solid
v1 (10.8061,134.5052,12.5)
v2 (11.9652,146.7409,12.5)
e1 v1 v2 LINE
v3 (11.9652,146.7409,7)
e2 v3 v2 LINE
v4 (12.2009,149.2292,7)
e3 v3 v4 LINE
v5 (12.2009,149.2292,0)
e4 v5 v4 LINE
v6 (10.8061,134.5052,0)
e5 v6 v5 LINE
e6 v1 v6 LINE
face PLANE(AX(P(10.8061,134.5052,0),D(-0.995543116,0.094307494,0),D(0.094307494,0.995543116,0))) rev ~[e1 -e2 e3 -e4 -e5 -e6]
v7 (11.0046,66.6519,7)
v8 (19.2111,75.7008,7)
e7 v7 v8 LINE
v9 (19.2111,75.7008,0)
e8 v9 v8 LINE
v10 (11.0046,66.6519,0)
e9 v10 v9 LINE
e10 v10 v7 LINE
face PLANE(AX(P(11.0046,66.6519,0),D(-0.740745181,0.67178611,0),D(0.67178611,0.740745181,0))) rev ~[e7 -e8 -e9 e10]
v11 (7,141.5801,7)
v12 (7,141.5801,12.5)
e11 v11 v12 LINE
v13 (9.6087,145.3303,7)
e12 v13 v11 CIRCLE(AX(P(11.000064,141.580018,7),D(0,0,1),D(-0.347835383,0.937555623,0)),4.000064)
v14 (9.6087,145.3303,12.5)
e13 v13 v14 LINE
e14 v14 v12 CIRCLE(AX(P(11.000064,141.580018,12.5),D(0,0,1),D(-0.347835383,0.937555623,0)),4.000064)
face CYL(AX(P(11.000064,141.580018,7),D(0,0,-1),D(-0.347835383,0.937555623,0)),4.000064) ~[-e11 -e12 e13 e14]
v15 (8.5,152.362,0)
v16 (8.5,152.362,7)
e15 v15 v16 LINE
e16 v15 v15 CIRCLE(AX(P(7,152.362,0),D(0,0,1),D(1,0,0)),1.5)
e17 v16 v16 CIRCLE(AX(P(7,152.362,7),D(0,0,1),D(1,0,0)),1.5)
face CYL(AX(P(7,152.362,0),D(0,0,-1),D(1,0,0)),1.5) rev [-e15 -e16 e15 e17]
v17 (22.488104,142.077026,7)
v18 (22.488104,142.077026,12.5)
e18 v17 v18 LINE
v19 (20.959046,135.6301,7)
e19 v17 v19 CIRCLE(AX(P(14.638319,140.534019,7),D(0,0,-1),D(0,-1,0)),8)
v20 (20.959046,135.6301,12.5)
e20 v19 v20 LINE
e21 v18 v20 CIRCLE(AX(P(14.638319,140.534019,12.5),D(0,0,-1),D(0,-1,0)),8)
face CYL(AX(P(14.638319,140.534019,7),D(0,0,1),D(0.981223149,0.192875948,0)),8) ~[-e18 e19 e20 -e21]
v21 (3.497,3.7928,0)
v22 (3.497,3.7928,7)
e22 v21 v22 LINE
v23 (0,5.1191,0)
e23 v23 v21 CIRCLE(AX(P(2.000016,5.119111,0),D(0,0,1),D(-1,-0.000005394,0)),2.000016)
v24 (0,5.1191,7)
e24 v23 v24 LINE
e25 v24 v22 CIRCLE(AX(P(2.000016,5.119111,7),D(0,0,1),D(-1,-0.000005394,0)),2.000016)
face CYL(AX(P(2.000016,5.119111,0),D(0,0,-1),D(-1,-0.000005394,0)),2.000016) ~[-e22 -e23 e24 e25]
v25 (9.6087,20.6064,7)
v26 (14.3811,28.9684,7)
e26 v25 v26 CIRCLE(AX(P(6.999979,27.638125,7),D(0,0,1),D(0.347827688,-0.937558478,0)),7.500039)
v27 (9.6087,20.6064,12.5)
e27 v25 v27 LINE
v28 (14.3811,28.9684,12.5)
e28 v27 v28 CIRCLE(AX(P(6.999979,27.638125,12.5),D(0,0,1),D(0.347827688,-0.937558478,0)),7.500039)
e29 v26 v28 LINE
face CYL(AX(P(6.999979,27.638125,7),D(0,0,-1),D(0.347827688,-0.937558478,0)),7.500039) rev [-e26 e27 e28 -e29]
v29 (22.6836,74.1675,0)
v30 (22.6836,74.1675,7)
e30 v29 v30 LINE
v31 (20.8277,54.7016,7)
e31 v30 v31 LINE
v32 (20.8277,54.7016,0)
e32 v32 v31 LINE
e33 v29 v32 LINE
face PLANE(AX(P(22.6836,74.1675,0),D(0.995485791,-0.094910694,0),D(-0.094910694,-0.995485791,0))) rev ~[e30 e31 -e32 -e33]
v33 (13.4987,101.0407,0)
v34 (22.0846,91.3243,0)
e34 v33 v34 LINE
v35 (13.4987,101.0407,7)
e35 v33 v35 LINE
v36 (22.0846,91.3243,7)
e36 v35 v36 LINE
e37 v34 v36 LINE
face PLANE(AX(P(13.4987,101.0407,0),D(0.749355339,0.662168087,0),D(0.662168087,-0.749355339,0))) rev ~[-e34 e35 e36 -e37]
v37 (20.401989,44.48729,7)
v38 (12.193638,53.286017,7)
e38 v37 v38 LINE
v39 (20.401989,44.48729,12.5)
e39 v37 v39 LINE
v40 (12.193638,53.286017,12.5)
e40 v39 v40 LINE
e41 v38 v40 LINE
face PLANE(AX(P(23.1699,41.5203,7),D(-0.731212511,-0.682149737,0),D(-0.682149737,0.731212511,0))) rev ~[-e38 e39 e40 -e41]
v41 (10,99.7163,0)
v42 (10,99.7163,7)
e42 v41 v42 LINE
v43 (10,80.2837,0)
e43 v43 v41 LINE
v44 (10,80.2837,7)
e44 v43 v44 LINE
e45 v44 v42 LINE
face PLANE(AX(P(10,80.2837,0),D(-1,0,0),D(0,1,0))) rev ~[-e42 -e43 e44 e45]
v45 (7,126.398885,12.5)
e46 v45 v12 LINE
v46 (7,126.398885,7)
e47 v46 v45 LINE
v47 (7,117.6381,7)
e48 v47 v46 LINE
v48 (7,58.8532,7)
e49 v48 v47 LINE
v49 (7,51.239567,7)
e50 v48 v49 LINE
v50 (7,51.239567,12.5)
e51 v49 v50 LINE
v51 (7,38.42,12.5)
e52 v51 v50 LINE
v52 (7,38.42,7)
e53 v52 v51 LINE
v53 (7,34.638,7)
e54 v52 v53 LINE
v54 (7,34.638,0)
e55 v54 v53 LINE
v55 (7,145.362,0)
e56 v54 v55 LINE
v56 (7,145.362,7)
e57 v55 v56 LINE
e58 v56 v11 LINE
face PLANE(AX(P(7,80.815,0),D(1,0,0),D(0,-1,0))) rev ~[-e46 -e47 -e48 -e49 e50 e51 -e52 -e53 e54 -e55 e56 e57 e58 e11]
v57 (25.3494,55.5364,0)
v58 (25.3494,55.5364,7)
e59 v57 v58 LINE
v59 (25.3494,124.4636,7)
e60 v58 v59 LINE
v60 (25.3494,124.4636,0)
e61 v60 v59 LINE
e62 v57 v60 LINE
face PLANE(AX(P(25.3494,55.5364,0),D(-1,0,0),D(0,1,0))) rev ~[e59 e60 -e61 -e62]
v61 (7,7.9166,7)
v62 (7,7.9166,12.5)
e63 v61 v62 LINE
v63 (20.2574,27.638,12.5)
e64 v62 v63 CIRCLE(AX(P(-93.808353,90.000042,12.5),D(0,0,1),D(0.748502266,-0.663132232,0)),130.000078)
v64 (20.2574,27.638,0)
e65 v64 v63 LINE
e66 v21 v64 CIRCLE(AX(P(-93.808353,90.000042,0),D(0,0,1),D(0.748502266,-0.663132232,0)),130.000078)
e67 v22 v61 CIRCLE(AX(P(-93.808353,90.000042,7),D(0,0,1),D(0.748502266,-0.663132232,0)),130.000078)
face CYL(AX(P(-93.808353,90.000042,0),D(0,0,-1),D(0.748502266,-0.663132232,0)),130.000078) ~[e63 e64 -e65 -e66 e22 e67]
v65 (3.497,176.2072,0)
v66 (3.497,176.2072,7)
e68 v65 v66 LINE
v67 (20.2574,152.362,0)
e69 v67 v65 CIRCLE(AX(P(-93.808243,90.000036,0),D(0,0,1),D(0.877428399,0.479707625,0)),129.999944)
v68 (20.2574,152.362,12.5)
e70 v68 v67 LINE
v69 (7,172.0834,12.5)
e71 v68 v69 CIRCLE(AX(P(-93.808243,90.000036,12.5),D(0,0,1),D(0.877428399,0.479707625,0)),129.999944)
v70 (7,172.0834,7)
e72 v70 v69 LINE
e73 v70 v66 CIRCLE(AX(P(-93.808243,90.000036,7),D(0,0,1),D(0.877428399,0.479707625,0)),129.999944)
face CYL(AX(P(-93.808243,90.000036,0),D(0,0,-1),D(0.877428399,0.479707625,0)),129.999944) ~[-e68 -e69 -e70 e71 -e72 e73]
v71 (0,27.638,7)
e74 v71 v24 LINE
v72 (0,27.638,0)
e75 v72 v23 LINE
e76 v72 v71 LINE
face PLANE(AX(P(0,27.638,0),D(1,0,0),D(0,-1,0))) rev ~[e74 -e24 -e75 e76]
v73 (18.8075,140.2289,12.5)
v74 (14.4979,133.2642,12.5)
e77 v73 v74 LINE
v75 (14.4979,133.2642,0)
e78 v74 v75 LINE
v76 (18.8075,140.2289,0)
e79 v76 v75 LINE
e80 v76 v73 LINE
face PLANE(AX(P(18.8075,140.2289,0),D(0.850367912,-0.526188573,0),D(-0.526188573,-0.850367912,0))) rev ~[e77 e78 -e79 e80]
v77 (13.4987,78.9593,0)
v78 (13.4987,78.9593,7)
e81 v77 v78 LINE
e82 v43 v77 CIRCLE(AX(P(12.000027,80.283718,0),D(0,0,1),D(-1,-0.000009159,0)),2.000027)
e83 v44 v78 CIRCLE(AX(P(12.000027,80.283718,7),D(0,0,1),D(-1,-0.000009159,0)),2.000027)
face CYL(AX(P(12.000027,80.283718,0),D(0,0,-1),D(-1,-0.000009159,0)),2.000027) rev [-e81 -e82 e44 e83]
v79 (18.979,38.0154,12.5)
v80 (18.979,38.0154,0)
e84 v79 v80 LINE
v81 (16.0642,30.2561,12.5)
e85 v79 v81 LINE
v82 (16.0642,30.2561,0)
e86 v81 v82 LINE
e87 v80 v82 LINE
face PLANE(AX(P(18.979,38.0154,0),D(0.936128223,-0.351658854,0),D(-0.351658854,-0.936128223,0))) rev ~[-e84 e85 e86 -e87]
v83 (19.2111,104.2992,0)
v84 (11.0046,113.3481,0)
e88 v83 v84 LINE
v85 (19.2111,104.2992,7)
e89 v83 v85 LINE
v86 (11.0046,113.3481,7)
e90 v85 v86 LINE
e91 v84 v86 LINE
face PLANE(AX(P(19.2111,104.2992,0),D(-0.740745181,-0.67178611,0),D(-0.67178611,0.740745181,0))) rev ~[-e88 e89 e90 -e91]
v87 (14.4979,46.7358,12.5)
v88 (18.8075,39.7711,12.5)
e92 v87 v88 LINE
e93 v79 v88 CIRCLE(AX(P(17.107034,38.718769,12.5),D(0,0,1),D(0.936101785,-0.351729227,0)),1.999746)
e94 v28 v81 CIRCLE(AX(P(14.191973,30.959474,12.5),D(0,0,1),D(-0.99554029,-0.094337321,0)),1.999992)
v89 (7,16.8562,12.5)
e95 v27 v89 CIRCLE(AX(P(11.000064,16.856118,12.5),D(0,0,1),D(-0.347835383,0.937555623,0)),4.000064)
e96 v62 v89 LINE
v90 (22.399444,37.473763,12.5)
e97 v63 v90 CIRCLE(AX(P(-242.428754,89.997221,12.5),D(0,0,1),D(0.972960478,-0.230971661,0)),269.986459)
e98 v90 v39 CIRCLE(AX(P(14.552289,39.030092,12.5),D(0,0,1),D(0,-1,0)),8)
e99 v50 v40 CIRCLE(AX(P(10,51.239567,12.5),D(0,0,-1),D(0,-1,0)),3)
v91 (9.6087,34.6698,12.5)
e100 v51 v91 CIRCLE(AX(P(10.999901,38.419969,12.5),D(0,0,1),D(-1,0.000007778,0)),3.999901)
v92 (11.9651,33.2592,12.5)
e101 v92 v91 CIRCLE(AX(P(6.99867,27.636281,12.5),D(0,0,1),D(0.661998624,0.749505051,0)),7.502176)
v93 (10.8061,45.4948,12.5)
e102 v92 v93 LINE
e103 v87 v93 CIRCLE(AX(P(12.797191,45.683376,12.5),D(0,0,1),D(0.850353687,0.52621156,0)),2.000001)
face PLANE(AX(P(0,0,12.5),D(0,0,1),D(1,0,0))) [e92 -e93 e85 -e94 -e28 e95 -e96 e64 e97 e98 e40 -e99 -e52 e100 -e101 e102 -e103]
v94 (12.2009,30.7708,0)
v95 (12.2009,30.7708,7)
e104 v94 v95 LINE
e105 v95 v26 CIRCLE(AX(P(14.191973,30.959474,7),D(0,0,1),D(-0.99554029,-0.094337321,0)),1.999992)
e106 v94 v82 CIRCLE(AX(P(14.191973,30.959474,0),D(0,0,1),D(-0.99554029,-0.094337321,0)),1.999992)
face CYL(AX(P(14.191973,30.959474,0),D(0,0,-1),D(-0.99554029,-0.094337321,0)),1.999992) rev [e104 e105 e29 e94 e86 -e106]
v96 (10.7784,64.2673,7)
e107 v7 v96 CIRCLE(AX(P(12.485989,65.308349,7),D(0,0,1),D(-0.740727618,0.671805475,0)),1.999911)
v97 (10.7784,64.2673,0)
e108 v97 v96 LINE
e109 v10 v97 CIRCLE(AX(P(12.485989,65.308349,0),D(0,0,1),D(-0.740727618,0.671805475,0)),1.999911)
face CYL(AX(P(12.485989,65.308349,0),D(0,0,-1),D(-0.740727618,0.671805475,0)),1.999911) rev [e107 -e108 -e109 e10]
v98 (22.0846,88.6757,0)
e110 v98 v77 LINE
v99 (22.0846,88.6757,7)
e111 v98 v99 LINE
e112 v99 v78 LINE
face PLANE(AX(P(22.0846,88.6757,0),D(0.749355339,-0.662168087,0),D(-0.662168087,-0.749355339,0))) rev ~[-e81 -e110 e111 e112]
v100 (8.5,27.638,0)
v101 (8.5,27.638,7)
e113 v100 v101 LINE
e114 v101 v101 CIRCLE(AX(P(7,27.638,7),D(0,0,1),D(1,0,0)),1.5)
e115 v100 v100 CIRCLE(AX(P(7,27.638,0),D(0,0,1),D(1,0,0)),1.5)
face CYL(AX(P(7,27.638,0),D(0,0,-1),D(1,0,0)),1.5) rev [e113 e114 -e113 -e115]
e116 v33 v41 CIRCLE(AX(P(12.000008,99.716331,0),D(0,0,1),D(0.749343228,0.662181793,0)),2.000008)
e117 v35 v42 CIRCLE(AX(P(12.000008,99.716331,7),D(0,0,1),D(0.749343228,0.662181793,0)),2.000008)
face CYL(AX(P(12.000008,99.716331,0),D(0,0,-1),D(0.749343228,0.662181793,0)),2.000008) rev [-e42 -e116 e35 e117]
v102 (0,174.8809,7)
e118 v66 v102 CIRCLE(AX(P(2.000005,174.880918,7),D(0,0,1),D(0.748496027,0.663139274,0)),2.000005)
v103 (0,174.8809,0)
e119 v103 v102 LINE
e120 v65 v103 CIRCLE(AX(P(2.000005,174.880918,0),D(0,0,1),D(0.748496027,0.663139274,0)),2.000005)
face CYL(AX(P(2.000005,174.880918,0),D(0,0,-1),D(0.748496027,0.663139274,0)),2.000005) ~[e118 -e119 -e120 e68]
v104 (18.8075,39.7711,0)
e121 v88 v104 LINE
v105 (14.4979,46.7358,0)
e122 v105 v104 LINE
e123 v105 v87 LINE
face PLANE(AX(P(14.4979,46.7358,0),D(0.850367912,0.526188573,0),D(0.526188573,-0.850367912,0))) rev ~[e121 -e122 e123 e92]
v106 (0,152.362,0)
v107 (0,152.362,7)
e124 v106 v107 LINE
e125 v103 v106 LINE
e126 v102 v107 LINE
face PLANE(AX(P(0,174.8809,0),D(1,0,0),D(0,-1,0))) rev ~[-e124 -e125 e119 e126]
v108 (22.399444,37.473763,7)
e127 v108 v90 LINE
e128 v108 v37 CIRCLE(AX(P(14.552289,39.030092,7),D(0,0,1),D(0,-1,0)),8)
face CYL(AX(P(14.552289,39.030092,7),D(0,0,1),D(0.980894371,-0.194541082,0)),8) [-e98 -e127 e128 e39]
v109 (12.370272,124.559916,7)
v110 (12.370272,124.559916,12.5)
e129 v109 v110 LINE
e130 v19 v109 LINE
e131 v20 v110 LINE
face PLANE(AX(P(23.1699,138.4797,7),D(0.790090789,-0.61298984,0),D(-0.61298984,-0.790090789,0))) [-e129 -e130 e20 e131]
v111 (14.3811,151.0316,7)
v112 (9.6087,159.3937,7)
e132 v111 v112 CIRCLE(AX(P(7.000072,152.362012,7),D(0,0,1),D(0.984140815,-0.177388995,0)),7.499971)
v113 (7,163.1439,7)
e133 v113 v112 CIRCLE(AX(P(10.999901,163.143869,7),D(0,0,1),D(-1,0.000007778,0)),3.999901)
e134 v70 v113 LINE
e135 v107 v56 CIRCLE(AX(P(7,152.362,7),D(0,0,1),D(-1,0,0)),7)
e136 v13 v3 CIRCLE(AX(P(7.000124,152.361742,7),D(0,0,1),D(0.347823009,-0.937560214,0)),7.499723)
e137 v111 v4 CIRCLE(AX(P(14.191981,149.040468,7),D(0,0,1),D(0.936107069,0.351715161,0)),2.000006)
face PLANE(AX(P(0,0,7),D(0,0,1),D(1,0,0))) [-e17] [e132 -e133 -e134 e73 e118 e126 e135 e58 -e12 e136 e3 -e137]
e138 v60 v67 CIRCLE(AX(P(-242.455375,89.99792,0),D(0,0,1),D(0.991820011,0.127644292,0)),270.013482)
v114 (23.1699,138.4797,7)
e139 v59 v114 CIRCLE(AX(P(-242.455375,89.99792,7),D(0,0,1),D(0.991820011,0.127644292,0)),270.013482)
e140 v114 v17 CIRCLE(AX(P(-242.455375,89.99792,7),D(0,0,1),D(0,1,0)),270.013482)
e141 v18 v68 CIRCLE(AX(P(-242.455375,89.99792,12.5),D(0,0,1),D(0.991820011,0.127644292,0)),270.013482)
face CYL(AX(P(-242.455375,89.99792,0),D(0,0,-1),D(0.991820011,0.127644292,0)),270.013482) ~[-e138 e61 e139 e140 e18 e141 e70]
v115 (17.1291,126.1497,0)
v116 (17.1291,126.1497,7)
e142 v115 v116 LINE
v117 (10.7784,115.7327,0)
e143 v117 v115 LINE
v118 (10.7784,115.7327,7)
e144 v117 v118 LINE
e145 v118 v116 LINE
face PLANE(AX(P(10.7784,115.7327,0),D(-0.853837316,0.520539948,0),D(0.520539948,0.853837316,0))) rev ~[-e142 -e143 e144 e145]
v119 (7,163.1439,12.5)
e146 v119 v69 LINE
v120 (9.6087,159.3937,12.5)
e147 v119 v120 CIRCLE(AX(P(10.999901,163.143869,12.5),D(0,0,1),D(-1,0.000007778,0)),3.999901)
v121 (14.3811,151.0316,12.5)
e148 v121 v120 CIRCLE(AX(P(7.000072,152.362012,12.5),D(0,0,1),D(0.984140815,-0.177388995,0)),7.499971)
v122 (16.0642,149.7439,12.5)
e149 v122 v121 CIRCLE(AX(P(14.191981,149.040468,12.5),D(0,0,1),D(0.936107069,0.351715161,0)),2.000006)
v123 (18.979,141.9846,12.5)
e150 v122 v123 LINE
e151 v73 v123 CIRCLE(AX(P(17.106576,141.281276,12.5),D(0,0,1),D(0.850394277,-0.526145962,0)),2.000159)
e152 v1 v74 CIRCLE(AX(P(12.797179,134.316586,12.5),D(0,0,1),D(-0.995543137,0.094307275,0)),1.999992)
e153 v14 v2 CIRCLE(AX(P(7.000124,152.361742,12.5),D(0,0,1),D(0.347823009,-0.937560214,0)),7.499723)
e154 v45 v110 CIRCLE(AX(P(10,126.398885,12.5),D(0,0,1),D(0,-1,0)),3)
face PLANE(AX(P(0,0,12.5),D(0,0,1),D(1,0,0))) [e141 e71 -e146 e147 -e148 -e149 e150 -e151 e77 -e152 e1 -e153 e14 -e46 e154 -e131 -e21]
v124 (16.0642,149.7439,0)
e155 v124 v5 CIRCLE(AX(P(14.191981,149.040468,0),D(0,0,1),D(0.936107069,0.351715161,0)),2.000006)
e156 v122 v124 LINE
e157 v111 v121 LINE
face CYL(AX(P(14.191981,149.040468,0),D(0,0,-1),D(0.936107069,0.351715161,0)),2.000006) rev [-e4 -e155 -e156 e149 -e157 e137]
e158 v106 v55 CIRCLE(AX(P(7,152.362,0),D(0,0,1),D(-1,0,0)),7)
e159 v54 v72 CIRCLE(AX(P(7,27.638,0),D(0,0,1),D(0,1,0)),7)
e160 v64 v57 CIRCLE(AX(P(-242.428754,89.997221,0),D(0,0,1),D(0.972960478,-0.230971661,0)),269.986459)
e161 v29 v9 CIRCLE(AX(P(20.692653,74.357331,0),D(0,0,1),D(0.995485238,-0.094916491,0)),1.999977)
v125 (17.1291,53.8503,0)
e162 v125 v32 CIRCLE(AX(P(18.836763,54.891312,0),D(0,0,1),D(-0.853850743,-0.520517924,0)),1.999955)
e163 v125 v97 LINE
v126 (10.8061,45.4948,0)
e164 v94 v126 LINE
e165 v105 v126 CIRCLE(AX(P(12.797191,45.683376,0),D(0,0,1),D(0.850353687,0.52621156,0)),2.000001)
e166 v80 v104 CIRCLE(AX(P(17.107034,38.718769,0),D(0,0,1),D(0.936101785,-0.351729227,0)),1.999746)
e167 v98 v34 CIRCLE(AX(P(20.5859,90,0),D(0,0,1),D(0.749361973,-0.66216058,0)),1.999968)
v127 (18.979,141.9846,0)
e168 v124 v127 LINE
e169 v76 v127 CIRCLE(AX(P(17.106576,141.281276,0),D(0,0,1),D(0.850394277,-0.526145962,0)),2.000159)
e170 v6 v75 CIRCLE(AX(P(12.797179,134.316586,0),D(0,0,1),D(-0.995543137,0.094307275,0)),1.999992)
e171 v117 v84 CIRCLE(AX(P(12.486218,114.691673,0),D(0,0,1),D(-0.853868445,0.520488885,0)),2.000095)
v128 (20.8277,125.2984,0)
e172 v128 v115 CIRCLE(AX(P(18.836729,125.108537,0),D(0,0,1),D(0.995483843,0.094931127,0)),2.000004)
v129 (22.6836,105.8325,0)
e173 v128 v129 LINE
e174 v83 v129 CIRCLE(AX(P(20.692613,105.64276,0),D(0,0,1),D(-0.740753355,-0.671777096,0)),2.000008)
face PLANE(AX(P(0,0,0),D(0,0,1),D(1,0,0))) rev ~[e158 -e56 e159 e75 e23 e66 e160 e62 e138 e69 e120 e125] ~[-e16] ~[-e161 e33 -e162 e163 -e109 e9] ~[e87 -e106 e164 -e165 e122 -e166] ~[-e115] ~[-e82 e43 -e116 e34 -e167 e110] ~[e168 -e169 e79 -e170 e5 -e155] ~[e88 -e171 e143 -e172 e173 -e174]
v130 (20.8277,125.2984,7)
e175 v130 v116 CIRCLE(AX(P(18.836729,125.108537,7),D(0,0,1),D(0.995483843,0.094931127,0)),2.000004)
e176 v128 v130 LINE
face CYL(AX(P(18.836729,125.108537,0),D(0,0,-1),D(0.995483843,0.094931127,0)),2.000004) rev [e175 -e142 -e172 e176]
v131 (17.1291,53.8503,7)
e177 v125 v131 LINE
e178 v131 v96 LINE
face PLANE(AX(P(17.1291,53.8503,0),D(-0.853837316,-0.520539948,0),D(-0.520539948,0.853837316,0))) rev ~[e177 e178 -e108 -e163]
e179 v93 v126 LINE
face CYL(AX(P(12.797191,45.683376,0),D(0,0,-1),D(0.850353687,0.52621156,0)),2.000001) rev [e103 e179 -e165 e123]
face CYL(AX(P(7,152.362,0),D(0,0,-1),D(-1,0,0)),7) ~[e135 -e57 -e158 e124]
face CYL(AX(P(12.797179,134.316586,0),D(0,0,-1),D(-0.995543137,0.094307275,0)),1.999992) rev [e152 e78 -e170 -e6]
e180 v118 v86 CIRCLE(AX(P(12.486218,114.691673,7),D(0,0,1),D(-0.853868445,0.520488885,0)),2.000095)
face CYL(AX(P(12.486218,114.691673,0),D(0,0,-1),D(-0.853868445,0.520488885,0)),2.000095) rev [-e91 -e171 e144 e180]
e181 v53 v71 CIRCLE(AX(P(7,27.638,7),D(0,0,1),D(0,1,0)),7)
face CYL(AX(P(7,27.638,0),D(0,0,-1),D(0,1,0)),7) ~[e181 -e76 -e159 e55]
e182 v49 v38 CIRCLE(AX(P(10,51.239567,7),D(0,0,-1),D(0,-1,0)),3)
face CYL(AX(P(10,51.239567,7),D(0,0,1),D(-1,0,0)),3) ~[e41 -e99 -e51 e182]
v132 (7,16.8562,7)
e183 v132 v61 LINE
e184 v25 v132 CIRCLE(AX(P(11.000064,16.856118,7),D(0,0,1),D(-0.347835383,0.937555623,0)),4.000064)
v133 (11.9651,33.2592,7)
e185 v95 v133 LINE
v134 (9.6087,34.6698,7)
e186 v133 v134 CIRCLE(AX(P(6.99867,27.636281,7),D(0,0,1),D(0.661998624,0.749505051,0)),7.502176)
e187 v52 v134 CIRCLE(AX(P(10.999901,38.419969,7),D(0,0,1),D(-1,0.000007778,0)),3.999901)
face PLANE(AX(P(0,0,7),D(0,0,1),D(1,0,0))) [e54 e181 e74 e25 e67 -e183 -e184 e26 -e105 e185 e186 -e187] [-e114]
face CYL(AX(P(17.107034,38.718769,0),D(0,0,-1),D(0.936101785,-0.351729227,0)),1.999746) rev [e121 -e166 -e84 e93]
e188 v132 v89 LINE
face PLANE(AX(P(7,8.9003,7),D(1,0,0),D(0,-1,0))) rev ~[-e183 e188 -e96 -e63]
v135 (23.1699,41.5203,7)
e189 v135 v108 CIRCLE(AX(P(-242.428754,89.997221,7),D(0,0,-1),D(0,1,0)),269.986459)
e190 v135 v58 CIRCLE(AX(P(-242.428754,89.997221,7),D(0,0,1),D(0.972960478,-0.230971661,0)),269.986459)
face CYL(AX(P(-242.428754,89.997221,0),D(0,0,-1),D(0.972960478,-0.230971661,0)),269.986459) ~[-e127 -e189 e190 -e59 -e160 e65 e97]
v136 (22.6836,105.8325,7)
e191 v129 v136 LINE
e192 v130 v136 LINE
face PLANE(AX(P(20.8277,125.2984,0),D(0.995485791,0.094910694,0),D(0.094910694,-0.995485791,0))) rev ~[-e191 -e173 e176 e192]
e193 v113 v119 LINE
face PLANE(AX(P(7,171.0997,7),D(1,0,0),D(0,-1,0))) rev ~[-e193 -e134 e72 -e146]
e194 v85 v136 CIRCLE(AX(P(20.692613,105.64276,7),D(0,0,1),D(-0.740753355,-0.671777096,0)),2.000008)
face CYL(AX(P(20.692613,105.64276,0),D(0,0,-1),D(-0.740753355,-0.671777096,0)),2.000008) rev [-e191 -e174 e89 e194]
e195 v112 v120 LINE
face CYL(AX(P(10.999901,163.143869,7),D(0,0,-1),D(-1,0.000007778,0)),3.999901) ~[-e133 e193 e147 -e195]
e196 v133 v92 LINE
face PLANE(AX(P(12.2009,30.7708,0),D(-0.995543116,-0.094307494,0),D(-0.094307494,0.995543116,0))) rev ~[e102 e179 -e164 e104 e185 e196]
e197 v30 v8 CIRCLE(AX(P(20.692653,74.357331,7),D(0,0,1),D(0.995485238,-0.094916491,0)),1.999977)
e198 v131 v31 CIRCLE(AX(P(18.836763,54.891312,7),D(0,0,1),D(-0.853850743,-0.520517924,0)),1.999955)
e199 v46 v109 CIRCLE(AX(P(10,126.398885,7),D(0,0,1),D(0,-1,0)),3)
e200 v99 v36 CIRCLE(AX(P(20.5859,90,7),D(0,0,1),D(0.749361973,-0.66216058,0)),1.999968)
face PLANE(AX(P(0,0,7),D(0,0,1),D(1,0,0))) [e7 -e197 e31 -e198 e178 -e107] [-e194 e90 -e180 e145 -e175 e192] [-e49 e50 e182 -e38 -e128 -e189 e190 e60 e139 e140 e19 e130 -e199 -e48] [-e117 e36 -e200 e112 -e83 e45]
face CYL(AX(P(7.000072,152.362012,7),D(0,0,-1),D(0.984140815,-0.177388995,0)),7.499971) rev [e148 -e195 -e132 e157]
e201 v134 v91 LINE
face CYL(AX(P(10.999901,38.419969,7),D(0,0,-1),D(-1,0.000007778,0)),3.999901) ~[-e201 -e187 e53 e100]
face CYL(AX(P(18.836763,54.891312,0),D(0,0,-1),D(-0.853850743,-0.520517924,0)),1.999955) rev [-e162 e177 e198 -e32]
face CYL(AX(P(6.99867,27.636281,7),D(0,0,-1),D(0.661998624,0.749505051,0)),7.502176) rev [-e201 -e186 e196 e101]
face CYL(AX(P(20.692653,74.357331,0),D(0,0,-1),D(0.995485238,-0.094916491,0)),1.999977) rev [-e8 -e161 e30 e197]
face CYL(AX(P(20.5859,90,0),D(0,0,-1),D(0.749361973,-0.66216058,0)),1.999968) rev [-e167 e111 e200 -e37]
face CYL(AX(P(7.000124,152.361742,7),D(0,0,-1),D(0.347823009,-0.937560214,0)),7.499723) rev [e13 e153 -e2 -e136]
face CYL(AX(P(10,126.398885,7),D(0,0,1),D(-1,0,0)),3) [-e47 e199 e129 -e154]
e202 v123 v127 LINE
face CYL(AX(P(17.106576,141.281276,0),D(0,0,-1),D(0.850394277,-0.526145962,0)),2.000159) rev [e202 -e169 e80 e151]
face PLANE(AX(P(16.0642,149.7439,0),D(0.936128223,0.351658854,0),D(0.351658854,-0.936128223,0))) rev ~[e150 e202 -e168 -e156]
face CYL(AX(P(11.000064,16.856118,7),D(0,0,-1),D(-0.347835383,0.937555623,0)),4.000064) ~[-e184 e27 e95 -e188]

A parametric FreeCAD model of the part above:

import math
import FreeCAD as App
import Part
import Sketcher
Q = App.Units.Quantity


def edges_at(feature, points):
    """Names of the edges that pass closest to the given points."""
    edges = feature.Shape.Edges
    near = lambda p: min(range(len(edges)), key=lambda i: edges[i].distToShape(Part.Vertex(*p))[0])
    return sorted({f"Edge{near(p) + 1}" for p in points})

doc = App.newDocument("Part")
params = doc.addObject("Spreadsheet::Sheet", "Params")
for row, (alias, value) in enumerate([
    ("sketch1_diameter", "3 mm"),
    ("sketch1_radius", "2 mm"),
    ("sketch1_radius2", "130 mm"),
    ("sketch1_radius3", "7 mm"),
    ("sketch1_length", "14.79 mm"),
    ("pad1_length", "7 mm"),
    ("sketch2_radius", "4 mm"),
    ("sketch2_radius2", "2 mm"),
    ("sketch2_radius3", "2 mm"),
    ("sketch2_radius4", "2 mm"),
    ("sketch2_radius5", "4 mm"),
    ("pad2_length", "5.5 mm"),
    ("fillet_radius", "8 mm"),
    ("fillet2_radius", "3 mm"),
], start=1):
    params.set(f"A{row}", alias)
    params.set(f"B{row}", "=" + value)
    params.setAlias(f"B{row}", alias)

body = doc.addObject("PartDesign::Body", "Body")

# Sketch on XY plane
sketch1 = doc.addObject("Sketcher::SketchObject", "Sketch")
body.addObject(sketch1)
sketch1.AttachmentSupport = (doc.XY_Plane, [""])
sketch1.MapMode = "FlatFace"
sketch1.addGeometry(Part.LineSegment(App.Vector(0, 27.638, 0), App.Vector(0, 5.1191, 0)), False)
sketch1.addGeometry(Part.ArcOfCircle(Part.Circle(App.Vector(2, 5.1191, 0), App.Vector(0, 0, 1), 2), math.radians(180), math.radians(318.459958)), False)
sketch1.addGeometry(Part.ArcOfCircle(Part.Circle(App.Vector(-93.8083, 90, 0), App.Vector(0, 0, 1), 130.000011), math.radians(-41.539196), math.radians(-28.66631)), False)
sketch1.addGeometry(Part.ArcOfCircle(Part.Circle(App.Vector(-242.428754, 89.997221, 0), App.Vector(0, 0, 1), 269.986459), math.radians(-13.354284), math.radians(-7.333185)), False)
sketch1.addGeometry(Part.LineSegment(App.Vector(25.3494, 55.5364, 0), App.Vector(25.3494, 124.4636, 0)), False)
sketch1.addGeometry(Part.ArcOfCircle(Part.Circle(App.Vector(-242.455375, 89.99792, 0), App.Vector(0, 0, 1), 270.013482), math.radians(7.333486), math.radians(13.353983)), False)
sketch1.addGeometry(Part.ArcOfCircle(Part.Circle(App.Vector(-93.8083, 90, 0), App.Vector(0, 0, 1), 130.000011), math.radians(28.66631), math.radians(41.539196)), False)
sketch1.addGeometry(Part.ArcOfCircle(Part.Circle(App.Vector(2, 174.8809, 0), App.Vector(0, 0, 1), 2.00002), math.radians(41.540042), math.radians(180)), False)
sketch1.addGeometry(Part.LineSegment(App.Vector(0, 174.8809, 0), App.Vector(0, 152.362, 0)), False)
sketch1.addGeometry(Part.ArcOfCircle(Part.Circle(App.Vector(7, 152.362, 0), App.Vector(0, 0, 1), 7), math.radians(180), math.radians(270)), False)
sketch1.addGeometry(Part.LineSegment(App.Vector(7, 145.362, 0), App.Vector(7, 34.638, 0)), False)
sketch1.addGeometry(Part.ArcOfCircle(Part.Circle(App.Vector(7, 27.638, 0), App.Vector(0, 0, 1), 7), math.radians(90), math.radians(180)), False)
sketch1.addGeometry(Part.Circle(App.Vector(7, 27.638, 0), App.Vector(0, 0, 1), 1.5), False)
sketch1.addGeometry(Part.ArcOfCircle(Part.Circle(App.Vector(12.7972, 45.6834, 0), App.Vector(0, 0, 1), 1.999982), math.radians(31.749389), math.radians(185.410999)), False)
sketch1.addGeometry(Part.LineSegment(App.Vector(14.4979, 46.7358, 0), App.Vector(18.8075, 39.7711, 0)), False)
sketch1.addGeometry(Part.ArcOfCircle(Part.Circle(App.Vector(17.1068, 38.7188, 0), App.Vector(0, 0, 1), 1.999976), math.radians(-20.591587), math.radians(31.746953)), False)
sketch1.addGeometry(Part.LineSegment(App.Vector(18.979, 38.0154, 0), App.Vector(16.0642, 30.2561, 0)), False)
sketch1.addGeometry(Part.ArcOfCircle(Part.Circle(App.Vector(14.192, 30.9595, 0), App.Vector(0, 0, 1), 2.000022), math.radians(-174.586149), math.radians(-20.591587)), False)
sketch1.addGeometry(Part.LineSegment(App.Vector(12.2009, 30.7708, 0), App.Vector(10.8061, 45.4948, 0)), False)
sketch1.addGeometry(Part.ArcOfCircle(Part.Circle(App.Vector(12.4861, 65.3083, 0), App.Vector(0, 0, 1), 2.000026), math.radians(137.794528), math.radians(211.366144)), False)
sketch1.addGeometry(Part.LineSegment(App.Vector(11.0046, 66.6519, 0), App.Vector(19.2111, 75.7008, 0)), False)
sketch1.addGeometry(Part.ArcOfCircle(Part.Circle(App.Vector(20.6926, 74.3573, 0), App.Vector(0, 0, 1), 2.000026), math.radians(-5.445493), math.radians(137.79665)), False)
sketch1.addGeometry(Part.LineSegment(App.Vector(22.6836, 74.1675, 0), App.Vector(20.8277, 54.7016, 0)), False)
sketch1.addGeometry(Part.ArcOfCircle(Part.Circle(App.Vector(18.8368, 54.8914, 0), App.Vector(0, 0, 1), 2.000032), math.radians(-148.631409), math.radians(-5.445764)), False)
sketch1.addGeometry(Part.LineSegment(App.Vector(17.1291, 53.8503, 0), App.Vector(10.7784, 64.2673, 0)), False)
sketch1.addGeometry(Part.Circle(App.Vector(7, 152.362, 0), App.Vector(0, 0, 1), 1.5), False)
sketch1.addGeometry(Part.ArcOfCircle(Part.Circle(App.Vector(12, 99.7163, 0), App.Vector(0, 0, 1), 2.000034), math.radians(41.467007), math.radians(180)), False)
sketch1.addGeometry(Part.LineSegment(App.Vector(13.4987, 101.0407, 0), App.Vector(22.0846, 91.3243, 0)), False)
sketch1.addGeometry(Part.ArcOfCircle(Part.Circle(App.Vector(20.5859, 90, 0), App.Vector(0, 0, 1), 1.999968), math.radians(-41.46486), math.radians(41.46486)), False)
sketch1.addGeometry(Part.LineSegment(App.Vector(22.0846, 88.6757, 0), App.Vector(13.4987, 78.9593, 0)), False)
sketch1.addGeometry(Part.ArcOfCircle(Part.Circle(App.Vector(12, 80.2837, 0), App.Vector(0, 0, 1), 2), math.radians(180), math.radians(318.532993)), False)
sketch1.addGeometry(Part.LineSegment(App.Vector(10, 80.2837, 0), App.Vector(10, 99.7163, 0)), False)
sketch1.addGeometry(Part.ArcOfCircle(Part.Circle(App.Vector(18.8368, 125.1086, 0), App.Vector(0, 0, 1), 1.999927), math.radians(5.445764), math.radians(148.631409)), False)
sketch1.addGeometry(Part.LineSegment(App.Vector(20.8277, 125.2984, 0), App.Vector(22.6836, 105.8325, 0)), False)
sketch1.addGeometry(Part.ArcOfCircle(Part.Circle(App.Vector(20.6926, 105.6427, 0), App.Vector(0, 0, 1), 1.999959), math.radians(-137.79665), math.radians(5.445493)), False)
sketch1.addGeometry(Part.LineSegment(App.Vector(19.2111, 104.2992, 0), App.Vector(11.0046, 113.3481, 0)), False)
sketch1.addGeometry(Part.ArcOfCircle(Part.Circle(App.Vector(12.4861, 114.6917, 0), App.Vector(0, 0, 1), 1.99998), math.radians(148.633856), math.radians(222.205472)), False)
sketch1.addGeometry(Part.LineSegment(App.Vector(10.7784, 115.7327, 0), App.Vector(17.1291, 126.1497, 0)), False)
sketch1.addGeometry(Part.ArcOfCircle(Part.Circle(App.Vector(17.1068, 141.2812, 0), App.Vector(0, 0, 1), 1.999929), math.radians(-31.746953), math.radians(20.591587)), False)
sketch1.addGeometry(Part.LineSegment(App.Vector(18.8075, 140.2289, 0), App.Vector(14.4979, 133.2642, 0)), False)
sketch1.addGeometry(Part.ArcOfCircle(Part.Circle(App.Vector(12.7972, 134.3166, 0), App.Vector(0, 0, 1), 2.000012), math.radians(174.589001), math.radians(328.250611)), False)
sketch1.addGeometry(Part.LineSegment(App.Vector(10.8061, 134.5052, 0), App.Vector(12.2009, 149.2292, 0)), False)
sketch1.addGeometry(Part.ArcOfCircle(Part.Circle(App.Vector(14.192, 149.0405, 0), App.Vector(0, 0, 1), 1.999976), math.radians(20.591587), math.radians(174.586149)), False)
sketch1.addGeometry(Part.LineSegment(App.Vector(16.0642, 149.7439, 0), App.Vector(18.979, 141.9846, 0)), False)
sketch1.addConstraint(Sketcher.Constraint("Tangent", 0, 2, 1, 1))
sketch1.addConstraint(Sketcher.Constraint("Tangent", 1, 2, 2, 1))
sketch1.addConstraint(Sketcher.Constraint("Coincident", 2, 2, 3, 1))
sketch1.addConstraint(Sketcher.Constraint("Coincident", 3, 2, 4, 1))
sketch1.addConstraint(Sketcher.Constraint("Coincident", 4, 2, 5, 1))
sketch1.addConstraint(Sketcher.Constraint("Coincident", 5, 2, 6, 1))
sketch1.addConstraint(Sketcher.Constraint("Tangent", 6, 2, 7, 1))
sketch1.addConstraint(Sketcher.Constraint("Tangent", 7, 2, 8, 1))
sketch1.addConstraint(Sketcher.Constraint("Tangent", 8, 2, 9, 1))
sketch1.addConstraint(Sketcher.Constraint("Coincident", 9, 2, 10, 1))
sketch1.addConstraint(Sketcher.Constraint("Coincident", 10, 2, 11, 1))
sketch1.addConstraint(Sketcher.Constraint("Tangent", 11, 2, 0, 1))
sketch1.addConstraint(Sketcher.Constraint("Tangent", 13, 1, 14, 1))
sketch1.addConstraint(Sketcher.Constraint("Tangent", 14, 2, 15, 2))
sketch1.addConstraint(Sketcher.Constraint("Tangent", 15, 1, 16, 1))
sketch1.addConstraint(Sketcher.Constraint("Tangent", 16, 2, 17, 2))
sketch1.addConstraint(Sketcher.Constraint("Tangent", 17, 1, 18, 1))
sketch1.addConstraint(Sketcher.Constraint("Tangent", 18, 2, 13, 2))
sketch1.addConstraint(Sketcher.Constraint("Tangent", 19, 1, 20, 1))
sketch1.addConstraint(Sketcher.Constraint("Tangent", 20, 2, 21, 2))
sketch1.addConstraint(Sketcher.Constraint("Tangent", 21, 1, 22, 1))
sketch1.addConstraint(Sketcher.Constraint("Tangent", 22, 2, 23, 2))
sketch1.addConstraint(Sketcher.Constraint("Tangent", 23, 1, 24, 1))
sketch1.addConstraint(Sketcher.Constraint("Tangent", 24, 2, 19, 2))
sketch1.addConstraint(Sketcher.Constraint("Tangent", 26, 1, 27, 1))
sketch1.addConstraint(Sketcher.Constraint("Tangent", 27, 2, 28, 2))
sketch1.addConstraint(Sketcher.Constraint("Tangent", 28, 1, 29, 1))
sketch1.addConstraint(Sketcher.Constraint("Tangent", 29, 2, 30, 2))
sketch1.addConstraint(Sketcher.Constraint("Tangent", 30, 1, 31, 1))
sketch1.addConstraint(Sketcher.Constraint("Tangent", 31, 2, 26, 2))
sketch1.addConstraint(Sketcher.Constraint("Tangent", 32, 1, 33, 1))
sketch1.addConstraint(Sketcher.Constraint("Tangent", 33, 2, 34, 2))
sketch1.addConstraint(Sketcher.Constraint("Tangent", 34, 1, 35, 1))
sketch1.addConstraint(Sketcher.Constraint("Tangent", 35, 2, 36, 2))
sketch1.addConstraint(Sketcher.Constraint("Tangent", 36, 1, 37, 1))
sketch1.addConstraint(Sketcher.Constraint("Tangent", 37, 2, 32, 2))
sketch1.addConstraint(Sketcher.Constraint("Tangent", 38, 1, 39, 1))
sketch1.addConstraint(Sketcher.Constraint("Tangent", 39, 2, 40, 2))
sketch1.addConstraint(Sketcher.Constraint("Tangent", 40, 1, 41, 1))
sketch1.addConstraint(Sketcher.Constraint("Tangent", 41, 2, 42, 2))
sketch1.addConstraint(Sketcher.Constraint("Tangent", 42, 1, 43, 1))
sketch1.addConstraint(Sketcher.Constraint("Tangent", 43, 2, 38, 2))
sketch1.addConstraint(Sketcher.Constraint("Vertical", 0))
sketch1.addConstraint(Sketcher.Constraint("Vertical", 4))
sketch1.addConstraint(Sketcher.Constraint("Vertical", 8))
sketch1.addConstraint(Sketcher.Constraint("Vertical", 10))
sketch1.addConstraint(Sketcher.Constraint("Vertical", 31))
sketch1.addConstraint(Sketcher.Constraint("Coincident", 6, 3, 2, 3))
sketch1.addConstraint(Sketcher.Constraint("Coincident", 12, 3, 11, 3))
sketch1.addConstraint(Sketcher.Constraint("Coincident", 25, 3, 9, 3))
sketch1.addConstraint(Sketcher.Constraint("Equal", 2, 6))
sketch1.addConstraint(Sketcher.Constraint("Equal", 1, 7))
sketch1.addConstraint(Sketcher.Constraint("Equal", 9, 11))
sketch1.addConstraint(Sketcher.Constraint("Equal", 7, 13))
sketch1.addConstraint(Sketcher.Constraint("Equal", 13, 15))
sketch1.addConstraint(Sketcher.Constraint("Equal", 15, 17))
sketch1.addConstraint(Sketcher.Constraint("Equal", 17, 19))
sketch1.addConstraint(Sketcher.Constraint("Equal", 19, 21))
sketch1.addConstraint(Sketcher.Constraint("Equal", 21, 23))
sketch1.addConstraint(Sketcher.Constraint("Equal", 12, 25))
sketch1.addConstraint(Sketcher.Constraint("Equal", 23, 26))
sketch1.addConstraint(Sketcher.Constraint("Equal", 26, 28))
sketch1.addConstraint(Sketcher.Constraint("Equal", 28, 30))
sketch1.addConstraint(Sketcher.Constraint("Equal", 30, 32))
sketch1.addConstraint(Sketcher.Constraint("Equal", 32, 34))
sketch1.addConstraint(Sketcher.Constraint("Equal", 34, 36))
sketch1.addConstraint(Sketcher.Constraint("Equal", 36, 38))
sketch1.addConstraint(Sketcher.Constraint("Equal", 38, 40))
sketch1.addConstraint(Sketcher.Constraint("Equal", 40, 42))
sketch1.addConstraint(Sketcher.Constraint("PointOnObject", 0, 2, -2))
sketch1.addConstraint(Sketcher.Constraint("PointOnObject", 7, 2, -2))
sketch1.addConstraint(Sketcher.Constraint("Horizontal", 6, 3, 28, 3))
sketch1.addConstraint(Sketcher.Constraint("Horizontal", 12, 3, 2, 2))
sketch1.addConstraint(Sketcher.Constraint("Horizontal", 25, 3, 5, 2))
sketch1.addConstraint(Sketcher.Constraint("Vertical", 23, 3, 32, 3))
sketch1.addConstraint(Sketcher.Constraint("Vertical", 21, 3, 34, 3))
sketch1.addConstraint(Sketcher.Constraint("Vertical", 19, 3, 36, 3))
sketch1.addConstraint(Sketcher.Constraint("Vertical", 15, 3, 38, 3))
sketch1.addConstraint(Sketcher.Constraint("Vertical", 13, 3, 40, 3))
sketch1.addConstraint(Sketcher.Constraint("Vertical", 17, 3, 42, 3))
sketch1.addConstraint(Sketcher.Constraint("Vertical", 2, 2, 5, 2))
sketch1.addConstraint(Sketcher.Constraint("Vertical", 25, 3, 9, 2))
sketch1.addConstraint(Sketcher.Constraint("Vertical", 27, 2, 28, 1))
sketch1.addConstraint(Sketcher.Constraint("Vertical", 20, 2, 34, 1))
sketch1.addConstraint(Sketcher.Constraint("Vertical", 24, 2, 36, 1))
sketch1.addConstraint(Sketcher.Constraint("Vertical", 14, 2, 38, 1))
sketch1.addConstraint(Sketcher.Constraint("Vertical", 16, 2, 42, 1))
sketch1.addConstraint(Sketcher.Constraint("Diameter", 12, 3.0))
sketch1.addConstraint(Sketcher.Constraint("Radius", 1, 2.0))
sketch1.addConstraint(Sketcher.Constraint("Radius", 2, 130.0))
sketch1.addConstraint(Sketcher.Constraint("Radius", 9, 7.0))
sketch1.addConstraint(Sketcher.Constraint("DistanceY", -1, 1, 2, 3, 90.0))
sketch1.addConstraint(Sketcher.Constraint("DistanceX", -1, 1, 26, 3, 12.0))
sketch1.addConstraint(Sketcher.Constraint("Angle", 16, Q("-110.5888 deg")))
sketch1.addConstraint(Sketcher.Constraint("Radius", 3, 269.9865))
sketch1.addConstraint(Sketcher.Constraint("Radius", 5, 270.0135))
sketch1.addConstraint(Sketcher.Constraint("Distance", 18, 14.79))
sketch1.addConstraint(Sketcher.Constraint("DistanceY", 0, 2, 0, 1, 22.519))
sketch1.addConstraint(Sketcher.Constraint("DistanceY", 10, 2, 10, 1, 110.724))
sketch1.addConstraint(Sketcher.Constraint("Distance", 20, 12.216))
sketch1.addConstraint(Sketcher.Constraint("DistanceY", 4, 1, 4, 2, 68.9272))
sketch1.addConstraint(Sketcher.Constraint("DistanceY", 31, 1, 31, 2, 19.4326))
sketch1.addConstraint(Sketcher.Constraint("DistanceY", -1, 1, 5, 3, 89.998))
sketch1.addConstraint(Sketcher.Constraint("DistanceX", -1, 1, 17, 3, 14.192))
sketch1.addConstraint(Sketcher.Constraint("DistanceX", -1, 1, 19, 3, 12.486))
sketch1.addConstraint(Sketcher.Constraint("DistanceX", -1, 1, 28, 3, 20.586))
sketch1.addConstraint(Sketcher.Constraint("DistanceX", -1, 1, 13, 1, 14.498))
sketch1.addConstraint(Sketcher.Constraint("DistanceY", -1, 1, 14, 2, 39.771))
sketch1.addConstraint(Sketcher.Constraint("DistanceX", -1, 1, 15, 1, 18.979))
sketch1.addConstraint(Sketcher.Constraint("DistanceY", -1, 1, 19, 1, 66.652))
sketch1.addConstraint(Sketcher.Constraint("DistanceX", -1, 1, 20, 2, 19.211))
sketch1.addConstraint(Sketcher.Constraint("DistanceX", -1, 1, 23, 1, 17.129))
sketch1.addConstraint(Sketcher.Constraint("DistanceY", -1, 1, 35, 2, 113.348))
sketch1.addConstraint(Sketcher.Constraint("DistanceY", -1, 1, 38, 1, 140.229))
sketch1.addConstraint(Sketcher.Constraint("Distance", 22, 19.5542))
sketch1.addConstraint(Sketcher.Constraint("DistanceX", 3, 3, -1, 1, 242.4288))
sketch1.setExpression("Constraints[87]", "Params.sketch1_diameter")
sketch1.setExpression("Constraints[88]", "Params.sketch1_radius")
sketch1.setExpression("Constraints[89]", "Params.sketch1_radius2")
sketch1.setExpression("Constraints[90]", "Params.sketch1_radius3")
sketch1.setExpression("Constraints[96]", "Params.sketch1_length")
pad1 = doc.addObject("PartDesign::Pad", "Pad")
body.addObject(pad1)
pad1.Profile = sketch1
pad1.setExpression("Length", "Params.pad1_length")

# Sketch on XY plane
sketch2 = doc.addObject("Sketcher::SketchObject", "Sketch001")
body.addObject(sketch2)
sketch2.AttachmentSupport = (doc.XY_Plane, [""])
sketch2.MapMode = "FlatFace"
sketch2.AttachmentOffset = App.Placement(App.Vector(0, 0, 7), App.Rotation())
sketch2.addGeometry(Part.LineSegment(App.Vector(7, 58.8532, 0), App.Vector(7, 38.42, 0)), False)
sketch2.addGeometry(Part.ArcOfCircle(Part.Circle(App.Vector(11, 38.42, 0), App.Vector(0, 0, 1), 4), math.radians(180), math.radians(249.645471)), False)
sketch2.addGeometry(Part.ArcOfCircle(Part.Circle(App.Vector(6.99867, 27.636281, 0), App.Vector(0, 0, 1), 7.502176), math.radians(48.547522), math.radians(69.640889)), False)
sketch2.addGeometry(Part.LineSegment(App.Vector(11.965174, 33.259207, 0), App.Vector(10.8061, 45.4948, 0)), False)
sketch2.addGeometry(Part.ArcOfCircle(Part.Circle(App.Vector(12.7972, 45.6834, 0), App.Vector(0, 0, 1), 1.999982), math.radians(31.749389), math.radians(185.410999)), False)
sketch2.addGeometry(Part.LineSegment(App.Vector(14.4979, 46.7358, 0), App.Vector(18.8075, 39.7711, 0)), False)
sketch2.addGeometry(Part.ArcOfCircle(Part.Circle(App.Vector(17.1068, 38.7188, 0), App.Vector(0, 0, 1), 1.999976), math.radians(-20.591587), math.radians(31.746953)), False)
sketch2.addGeometry(Part.LineSegment(App.Vector(18.979, 38.0154, 0), App.Vector(16.0642, 30.2561, 0)), False)
sketch2.addGeometry(Part.ArcOfCircle(Part.Circle(App.Vector(14.192, 30.9595, 0), App.Vector(0, 0, 1), 2.000022), math.radians(-84.574742), math.radians(-20.591587)), False)
sketch2.addGeometry(Part.ArcOfCircle(Part.Circle(App.Vector(7, 27.6381, 0), App.Vector(0, 0, 1), 7.500008), math.radians(-69.645581), math.radians(10.21677)), False)
sketch2.addGeometry(Part.ArcOfCircle(Part.Circle(App.Vector(11, 16.8562, 0), App.Vector(0, 0, 1), 3.999964), math.radians(110.354529), math.radians(180)), False)
sketch2.addGeometry(Part.LineSegment(App.Vector(7, 16.8562, 0), App.Vector(7, 7.9166, 0)), False)
sketch2.addGeometry(Part.ArcOfCircle(Part.Circle(App.Vector(-93.8083, 90, 0), App.Vector(0, 0, 1), 130.000011), math.radians(-39.154286), math.radians(-28.66631)), False)
sketch2.addGeometry(Part.ArcOfCircle(Part.Circle(App.Vector(-242.428754, 89.997221, 0), App.Vector(0, 0, 1), 269.986459), math.radians(-13.354284), math.radians(-10.343736)), False)
sketch2.addGeometry(Part.LineSegment(App.Vector(23.1699, 41.5203, 0), App.Vector(7, 58.8532, 0)), False)
sketch2.addGeometry(Part.LineSegment(App.Vector(7, 141.5801, 0), App.Vector(7, 117.6381, 0)), False)
sketch2.addGeometry(Part.LineSegment(App.Vector(7, 117.6381, 0), App.Vector(23.1699, 138.4797, 0)), False)
sketch2.addGeometry(Part.ArcOfCircle(Part.Circle(App.Vector(-242.455375, 89.99792, 0), App.Vector(0, 0, 1), 270.013482), math.radians(10.343736), math.radians(13.353983)), False)
sketch2.addGeometry(Part.ArcOfCircle(Part.Circle(App.Vector(-93.8083, 90, 0), App.Vector(0, 0, 1), 130.000011), math.radians(28.66631), math.radians(39.154286)), False)
sketch2.addGeometry(Part.LineSegment(App.Vector(7, 172.0834, 0), App.Vector(7, 163.1439, 0)), False)
sketch2.addGeometry(Part.ArcOfCircle(Part.Circle(App.Vector(11, 163.1439, 0), App.Vector(0, 0, 1), 4), math.radians(180), math.radians(249.645471)), False)
sketch2.addGeometry(Part.ArcOfCircle(Part.Circle(App.Vector(7, 152.362, 0), App.Vector(0, 0, 1), 7.500008), math.radians(-10.217522), math.radians(69.645581)), False)
sketch2.addGeometry(Part.ArcOfCircle(Part.Circle(App.Vector(14.192, 149.0405, 0), App.Vector(0, 0, 1), 1.999976), math.radians(20.591587), math.radians(84.574742)), False)
sketch2.addGeometry(Part.LineSegment(App.Vector(16.0642, 149.7439, 0), App.Vector(18.979, 141.9846, 0)), False)
sketch2.addGeometry(Part.ArcOfCircle(Part.Circle(App.Vector(17.1068, 141.2812, 0), App.Vector(0, 0, 1), 1.999929), math.radians(-31.746953), math.radians(20.591587)), False)
sketch2.addGeometry(Part.LineSegment(App.Vector(18.8075, 140.2289, 0), App.Vector(14.4979, 133.2642, 0)), False)
sketch2.addGeometry(Part.ArcOfCircle(Part.Circle(App.Vector(12.7972, 134.3166, 0), App.Vector(0, 0, 1), 2.000012), math.radians(174.589001), math.radians(328.250611)), False)
sketch2.addGeometry(Part.LineSegment(App.Vector(10.8061, 134.5052, 0), App.Vector(11.965184, 146.740901, 0)), False)
sketch2.addGeometry(Part.ArcOfCircle(Part.Circle(App.Vector(7, 152.362, 0), App.Vector(0, 0, 1), 7.500008), math.radians(-69.645581), math.radians(-48.545368)), False)
sketch2.addGeometry(Part.ArcOfCircle(Part.Circle(App.Vector(11, 141.5801, 0), App.Vector(0, 0, 1), 3.999964), math.radians(110.354529), math.radians(180)), False)
sketch2.addConstraint(Sketcher.Constraint("Coincident", 0, 2, 1, 1))
sketch2.addConstraint(Sketcher.Constraint("Coincident", 1, 2, 2, 2))
sketch2.addConstraint(Sketcher.Constraint("Coincident", 2, 1, 3, 1))
sketch2.addConstraint(Sketcher.Constraint("Coincident", 3, 2, 4, 2))
sketch2.addConstraint(Sketcher.Constraint("Coincident", 4, 1, 5, 1))
sketch2.addConstraint(Sketcher.Constraint("Coincident", 5, 2, 6, 2))
sketch2.addConstraint(Sketcher.Constraint("Coincident", 6, 1, 7, 1))
sketch2.addConstraint(Sketcher.Constraint("Coincident", 7, 2, 8, 2))
sketch2.addConstraint(Sketcher.Constraint("Coincident", 8, 1, 9, 2))
sketch2.addConstraint(Sketcher.Constraint("Coincident", 9, 1, 10, 1))
sketch2.addConstraint(Sketcher.Constraint("Coincident", 10, 2, 11, 1))
sketch2.addConstraint(Sketcher.Constraint("Coincident", 11, 2, 12, 1))
sketch2.addConstraint(Sketcher.Constraint("Coincident", 12, 2, 13, 1))
sketch2.addConstraint(Sketcher.Constraint("Coincident", 13, 2, 14, 1))
sketch2.addConstraint(Sketcher.Constraint("Coincident", 14, 2, 0, 1))
sketch2.addConstraint(Sketcher.Constraint("Coincident", 15, 2, 16, 1))
sketch2.addConstraint(Sketcher.Constraint("Coincident", 16, 2, 17, 1))
sketch2.addConstraint(Sketcher.Constraint("Coincident", 17, 2, 18, 1))
sketch2.addConstraint(Sketcher.Constraint("Coincident", 18, 2, 19, 1))
sketch2.addConstraint(Sketcher.Constraint("Coincident", 19, 2, 20, 1))
sketch2.addConstraint(Sketcher.Constraint("Coincident", 20, 2, 21, 2))
sketch2.addConstraint(Sketcher.Constraint("Coincident", 21, 1, 22, 2))
sketch2.addConstraint(Sketcher.Constraint("Coincident", 22, 1, 23, 1))
sketch2.addConstraint(Sketcher.Constraint("Coincident", 23, 2, 24, 2))
sketch2.addConstraint(Sketcher.Constraint("Coincident", 24, 1, 25, 1))
sketch2.addConstraint(Sketcher.Constraint("Coincident", 25, 2, 26, 2))
sketch2.addConstraint(Sketcher.Constraint("Coincident", 26, 1, 27, 1))
sketch2.addConstraint(Sketcher.Constraint("Coincident", 27, 2, 28, 2))
sketch2.addConstraint(Sketcher.Constraint("Coincident", 28, 1, 29, 1))
sketch2.addConstraint(Sketcher.Constraint("Coincident", 29, 2, 15, 1))
sketch2.addConstraint(Sketcher.Constraint("Vertical", 0))
sketch2.addConstraint(Sketcher.Constraint("Vertical", 11))
sketch2.addConstraint(Sketcher.Constraint("Vertical", 15))
sketch2.addConstraint(Sketcher.Constraint("Vertical", 19))
sketch2.addConstraint(Sketcher.Constraint("Coincident", 18, 3, 12, 3))
sketch2.addConstraint(Sketcher.Constraint("Coincident", 28, 3, 21, 3))
sketch2.addConstraint(Sketcher.Constraint("Radius", 1, 4.0))
sketch2.addConstraint(Sketcher.Constraint("Radius", 4, 2.0))
sketch2.addConstraint(Sketcher.Constraint("Radius", 6, 2.0))
sketch2.addConstraint(Sketcher.Constraint("Radius", 8, 2.0))
sketch2.addConstraint(Sketcher.Constraint("Radius", 10, 4.0))
sketch2.addConstraint(Sketcher.Constraint("Radius", 20, 4.0))
sketch2.addConstraint(Sketcher.Constraint("Radius", 22, 2.0))
sketch2.addConstraint(Sketcher.Constraint("Radius", 24, 2.0))
sketch2.addConstraint(Sketcher.Constraint("Radius", 26, 2.0))
sketch2.addConstraint(Sketcher.Constraint("Radius", 29, 4.0))
sketch2.addConstraint(Sketcher.Constraint("Radius", 12, 130.0))
sketch2.addConstraint(Sketcher.Constraint("Radius", 18, 130.0))
sketch2.addConstraint(Sketcher.Constraint("DistanceX", 9, 3, 1, 3, 4.0))
sketch2.addConstraint(Sketcher.Constraint("DistanceX", 9, 3, 10, 3, 4.0))
sketch2.addConstraint(Sketcher.Constraint("DistanceX", 21, 3, 20, 3, 4.0))
sketch2.addConstraint(Sketcher.Constraint("DistanceX", 21, 3, 1, 3, 4.0))
sketch2.addConstraint(Sketcher.Constraint("DistanceX", 21, 3, 29, 3, 4.0))
sketch2.addConstraint(Sketcher.Constraint("Radius", 9, 7.5))
sketch2.addConstraint(Sketcher.Constraint("Radius", 21, 7.5))
sketch2.addConstraint(Sketcher.Constraint("Radius", 28, 7.5))
sketch2.addConstraint(Sketcher.Constraint("DistanceX", -1, 1, 1, 3, 11.0))
sketch2.addConstraint(Sketcher.Constraint("DistanceY", -1, 1, 12, 3, 90.0))
sketch2.addConstraint(Sketcher.Constraint("Radius", 2, 7.5022))
sketch2.addConstraint(Sketcher.Constraint("Radius", 13, 269.9865))
sketch2.addConstraint(Sketcher.Constraint("Radius", 17, 270.0135))
sketch2.addConstraint(Sketcher.Constraint("DistanceY", 15, 2, 15, 1, 23.942))
sketch2.addConstraint(Sketcher.Constraint("DistanceY", -1, 1, 1, 3, 38.42))
sketch2.addConstraint(Sketcher.Constraint("DistanceY", -1, 1, 29, 3, 141.58))
sketch2.addConstraint(Sketcher.Constraint("DistanceY", -1, 1, 0, 2, 38.42))
sketch2.addConstraint(Sketcher.Constraint("DistanceX", -1, 1, 13, 2, 23.17))
sketch2.addConstraint(Sketcher.Constraint("DistanceX", -1, 1, 16, 2, 23.17))
sketch2.addConstraint(Sketcher.Constraint("DistanceY", -1, 1, 29, 2, 141.58))
sketch2.addConstraint(Sketcher.Constraint("DistanceY", 10, 3, 2, 3, 10.78))
sketch2.addConstraint(Sketcher.Constraint("DistanceX", 2, 3, 1, 2, 2.61))
sketch2.addConstraint(Sketcher.Constraint("DistanceX", 2, 3, 9, 1, 2.61))
sketch2.addConstraint(Sketcher.Constraint("DistanceY", 9, 1, 2, 3, 7.03))
sketch2.addConstraint(Sketcher.Constraint("DistanceY", 10, 2, 2, 3, 10.78))
sketch2.addConstraint(Sketcher.Constraint("DistanceY", 0, 2, 0, 1, 20.4332))
sketch2.addConstraint(Sketcher.Constraint("DistanceY", 11, 2, 11, 1, 8.9396))
sketch2.addConstraint(Sketcher.Constraint("DistanceY", 19, 2, 19, 1, 8.9395))
sketch2.addConstraint(Sketcher.Constraint("DistanceX", -1, 1, 8, 3, 14.192))
sketch2.addConstraint(Sketcher.Constraint("DistanceY", -1, 1, 17, 3, 89.998))
sketch2.addConstraint(Sketcher.Constraint("DistanceX", -1, 1, 22, 3, 14.192))
sketch2.addConstraint(Sketcher.Constraint("DistanceX", -1, 1, 2, 1, 11.965))
sketch2.addConstraint(Sketcher.Constraint("DistanceX", -1, 1, 3, 2, 10.806))
sketch2.addConstraint(Sketcher.Constraint("DistanceX", -1, 1, 4, 1, 14.498))
sketch2.addConstraint(Sketcher.Constraint("DistanceY", -1, 1, 5, 2, 39.771))
sketch2.addConstraint(Sketcher.Constraint("DistanceX", -1, 1, 6, 1, 18.979))
sketch2.addConstraint(Sketcher.Constraint("DistanceY", -1, 1, 7, 2, 30.256))
sketch2.addConstraint(Sketcher.Constraint("DistanceX", -1, 1, 8, 1, 14.381))
sketch2.addConstraint(Sketcher.Constraint("DistanceY", -1, 1, 12, 2, 27.638))
sketch2.addConstraint(Sketcher.Constraint("DistanceY", -1, 1, 17, 2, 152.362))
sketch2.addConstraint(Sketcher.Constraint("DistanceX", -1, 1, 21, 1, 14.381))
sketch2.addConstraint(Sketcher.Constraint("DistanceY", -1, 1, 22, 1, 149.744))
sketch2.addConstraint(Sketcher.Constraint("DistanceX", -1, 1, 23, 2, 18.979))
sketch2.addConstraint(Sketcher.Constraint("DistanceY", -1, 1, 24, 1, 140.229))
sketch2.addConstraint(Sketcher.Constraint("DistanceX", -1, 1, 25, 2, 14.498))
sketch2.addConstraint(Sketcher.Constraint("DistanceX", -1, 1, 26, 1, 10.806))
sketch2.addConstraint(Sketcher.Constraint("DistanceY", -1, 1, 27, 2, 146.741))
sketch2.addConstraint(Sketcher.Constraint("DistanceY", 2, 3, 4, 3, 18.047))
sketch2.addConstraint(Sketcher.Constraint("DistanceX", 12, 3, 6, 3, 110.915))
sketch2.addConstraint(Sketcher.Constraint("DistanceY", 2, 3, 13, 3, 62.361))
sketch2.addConstraint(Sketcher.Constraint("DistanceX", 13, 3, 4, 3, 255.226))
sketch2.addConstraint(Sketcher.Constraint("DistanceY", 6, 3, 20, 3, 124.425))
sketch2.addConstraint(Sketcher.Constraint("DistanceY", 26, 3, 22, 3, 14.724))
sketch2.addConstraint(Sketcher.Constraint("DistanceY", 24, 3, 29, 3, 0.299))
sketch2.addConstraint(Sketcher.Constraint("DistanceX", 24, 3, 16, 2, 6.063))
sketch2.addConstraint(Sketcher.Constraint("DistanceY", 21, 1, 20, 2, 8.362))
sketch2.addConstraint(Sketcher.Constraint("DistanceY", 25, 2, 24, 3, 8.017))
sketch2.addConstraint(Sketcher.Constraint("DistanceX", -1, 1, 28, 1, 9.6087))
sketch2.setExpression("Constraints[36]", "Params.sketch2_radius")
sketch2.setExpression("Constraints[37]", "Params.sketch2_radius2")
sketch2.setExpression("Constraints[38]", "Params.sketch2_radius3")
sketch2.setExpression("Constraints[39]", "Params.sketch2_radius4")
sketch2.setExpression("Constraints[40]", "Params.sketch2_radius5")
pad2 = doc.addObject("PartDesign::Pad", "Pad001")
body.addObject(pad2)
pad2.Profile = sketch2
pad2.setExpression("Length", "Params.pad2_length")
doc.recompute()

fillet = doc.addObject("PartDesign::Fillet", "Fillet")
body.addObject(fillet)
fillet.Base = (pad2, edges_at(pad2, [(23.17, 138.48, 9.75), (23.17, 41.52, 9.75)]))
fillet.setExpression("Radius", "Params.fillet_radius")
doc.recompute()

fillet2 = doc.addObject("PartDesign::Fillet", "Fillet001")
body.addObject(fillet2)
fillet2.Base = (fillet, edges_at(fillet, [(7, 117.638, 9.75), (7, 58.853, 9.75)]))
fillet2.setExpression("Radius", "Params.fillet2_radius")

doc.recompute()
